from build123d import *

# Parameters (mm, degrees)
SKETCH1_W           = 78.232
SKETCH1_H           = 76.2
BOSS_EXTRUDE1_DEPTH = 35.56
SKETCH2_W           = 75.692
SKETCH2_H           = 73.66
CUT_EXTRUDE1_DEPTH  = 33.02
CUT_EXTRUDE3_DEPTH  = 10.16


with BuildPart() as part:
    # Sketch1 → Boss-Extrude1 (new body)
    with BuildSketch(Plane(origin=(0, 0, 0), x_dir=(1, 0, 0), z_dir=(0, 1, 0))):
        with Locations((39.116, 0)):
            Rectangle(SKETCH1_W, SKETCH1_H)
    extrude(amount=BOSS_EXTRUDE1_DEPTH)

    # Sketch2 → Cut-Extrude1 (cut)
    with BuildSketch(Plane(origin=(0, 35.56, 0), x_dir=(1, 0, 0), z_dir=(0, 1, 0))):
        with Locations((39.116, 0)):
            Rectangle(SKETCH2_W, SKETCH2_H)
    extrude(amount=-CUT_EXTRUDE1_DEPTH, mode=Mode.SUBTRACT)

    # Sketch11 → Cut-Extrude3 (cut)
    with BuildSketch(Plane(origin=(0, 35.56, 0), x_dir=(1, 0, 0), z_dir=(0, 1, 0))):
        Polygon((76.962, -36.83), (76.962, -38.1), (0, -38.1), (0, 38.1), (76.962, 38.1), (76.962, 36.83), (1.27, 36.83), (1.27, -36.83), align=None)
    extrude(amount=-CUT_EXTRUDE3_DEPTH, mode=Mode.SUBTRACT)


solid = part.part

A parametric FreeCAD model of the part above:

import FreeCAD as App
import Part
import Sketcher
Q = App.Units.Quantity

doc = App.newDocument("Part")
body = doc.addObject("PartDesign::Body", "Body")

# Sketch on XZ plane
sketch1 = doc.addObject("Sketcher::SketchObject", "Sketch")
body.addObject(sketch1)
sketch1.AttachmentSupport = (doc.XZ_Plane, [""])
sketch1.MapMode = "FlatFace"
sketch1.addGeometry([
    Part.LineSegment(App.Vector(0, -38.1, 0), App.Vector(0, 38.1, 0)),
    Part.LineSegment(App.Vector(0, 38.1, 0), App.Vector(78.232, 38.1, 0)),
    Part.LineSegment(App.Vector(78.232, 38.1, 0), App.Vector(78.232, -38.1, 0)),
    Part.LineSegment(App.Vector(78.232, -38.1, 0), App.Vector(0, -38.1, 0)),
], False)
sketch1.addConstraint([
    Sketcher.Constraint("Coincident", 0, 2, 1, 1),
    Sketcher.Constraint("Coincident", 1, 2, 2, 1),
    Sketcher.Constraint("Coincident", 2, 2, 3, 1),
    Sketcher.Constraint("Coincident", 3, 2, 0, 1),
    Sketcher.Constraint("Vertical", 0),
    Sketcher.Constraint("Horizontal", 1),
    Sketcher.Constraint("Vertical", 2),
    Sketcher.Constraint("Horizontal", 3),
    Sketcher.Constraint("Symmetric", 0, 2, 3, 2, -1, 1),
    Sketcher.Constraint("DistanceY", 0, 1, 0, 2, Q("3 in")),
    Sketcher.Constraint("DistanceX", 1, 1, 1, 2, Q("3.08 in")),
])
pad1 = doc.addObject("PartDesign::Pad", "Pad")
body.addObject(pad1)
pad1.Profile = sketch1
pad1.Length = Q("1.4 in")
pad1.Reversed = True

# Sketch on XZ plane
sketch2 = doc.addObject("Sketcher::SketchObject", "Sketch001")
body.addObject(sketch2)
sketch2.AttachmentSupport = (doc.XZ_Plane, [""])
sketch2.MapMode = "FlatFace"
sketch2.AttachmentOffset = App.Placement(App.Vector(0, 0, -1.4 * 25.4), App.Rotation())
sketch2.addGeometry([
    Part.LineSegment(App.Vector(1.27, -36.83, 0), App.Vector(1.27, 36.83, 0)),
    Part.LineSegment(App.Vector(1.27, 36.83, 0), App.Vector(76.962, 36.83, 0)),
    Part.LineSegment(App.Vector(76.962, 36.83, 0), App.Vector(76.962, -36.83, 0)),
    Part.LineSegment(App.Vector(76.962, -36.83, 0), App.Vector(1.27, -36.83, 0)),
], False)
sketch2.addConstraint([
    Sketcher.Constraint("Coincident", 0, 2, 1, 1),
    Sketcher.Constraint("Coincident", 1, 2, 2, 1),
    Sketcher.Constraint("Coincident", 2, 2, 3, 1),
    Sketcher.Constraint("Coincident", 3, 2, 0, 1),
    Sketcher.Constraint("Vertical", 0),
    Sketcher.Constraint("Horizontal", 1),
    Sketcher.Constraint("Vertical", 2),
    Sketcher.Constraint("Horizontal", 3),
    Sketcher.Constraint("DistanceY", 0, 1, 0, 2, Q("2.9 in")),
    Sketcher.Constraint("DistanceX", 1, 1, 1, 2, Q("2.98 in")),
    Sketcher.Constraint("DistanceX", -1, 1, 0, 2, Q("0.05 in")),
    Sketcher.Constraint("DistanceY", -1, 1, 0, 2, Q("1.45 in")),
])
pocket1 = doc.addObject("PartDesign::Pocket", "Pocket")
body.addObject(pocket1)
pocket1.Profile = sketch2
pocket1.Length = Q("1.3 in")
pocket1.Reversed = True

# Sketch on XZ plane
sketch3 = doc.addObject("Sketcher::SketchObject", "Sketch002")
body.addObject(sketch3)
sketch3.AttachmentSupport = (doc.XZ_Plane, [""])
sketch3.MapMode = "FlatFace"
sketch3.AttachmentOffset = App.Placement(App.Vector(0, 0, -1.4 * 25.4), App.Rotation())
sketch3.addGeometry([
    Part.LineSegment(App.Vector(76.962, 38.1, 0), App.Vector(76.962, 36.83, 0)),  # 0
    Part.LineSegment(App.Vector(76.962, 36.83, 0), App.Vector(1.27, 36.83, 0)),  # 1
    Part.LineSegment(App.Vector(1.27, 36.83, 0), App.Vector(1.27, -36.83, 0)),  # 2
    Part.LineSegment(App.Vector(1.27, -36.83, 0), App.Vector(76.962, -36.83, 0)),  # 3
    Part.LineSegment(App.Vector(76.962, -36.83, 0), App.Vector(76.962, -38.1, 0)),  # 4
    Part.LineSegment(App.Vector(76.962, -38.1, 0), App.Vector(0, -38.1, 0)),  # 5
    Part.LineSegment(App.Vector(0, -38.1, 0), App.Vector(0, 38.1, 0)),  # 6
    Part.LineSegment(App.Vector(0, 38.1, 0), App.Vector(76.962, 38.1, 0)),  # 7
], False)
sketch3.addConstraint([
    Sketcher.Constraint("Coincident", 0, 2, 1, 1),
    Sketcher.Constraint("Coincident", 1, 2, 2, 1),
    Sketcher.Constraint("Coincident", 2, 2, 3, 1),
    Sketcher.Constraint("Coincident", 3, 2, 4, 1),
    Sketcher.Constraint("Coincident", 4, 2, 5, 1),
    Sketcher.Constraint("Coincident", 5, 2, 6, 1),
    Sketcher.Constraint("Coincident", 6, 2, 7, 1),
    Sketcher.Constraint("Coincident", 7, 2, 0, 1),
    Sketcher.Constraint("Vertical", 0),
    Sketcher.Constraint("Horizontal", 1),
    Sketcher.Constraint("Vertical", 2),
    Sketcher.Constraint("Horizontal", 3),
    Sketcher.Constraint("Vertical", 4),
    Sketcher.Constraint("Horizontal", 5),
    Sketcher.Constraint("Vertical", 6),
    Sketcher.Constraint("Horizontal", 7),
    Sketcher.Constraint("Symmetric", 5, 2, 6, 2, -1, 1),
    Sketcher.Constraint("Symmetric", 0, 2, 3, 2, -1),
    Sketcher.Constraint("DistanceY", 6, 1, 6, 2, Q("3 in")),
    Sketcher.Constraint("DistanceY", 2, 2, 2, 1, Q("2.9 in")),
    Sketcher.Constraint("DistanceX", 1, 2, 1, 1, Q("2.98 in")),
    Sketcher.Constraint("DistanceX", 5, 2, 5, 1, Q("3.03 in")),
])
pocket2 = doc.addObject("PartDesign::Pocket", "Pocket001")
body.addObject(pocket2)
pocket2.Profile = sketch3
pocket2.Length = Q("0.4 in")
pocket2.Reversed = True

doc.recompute()
